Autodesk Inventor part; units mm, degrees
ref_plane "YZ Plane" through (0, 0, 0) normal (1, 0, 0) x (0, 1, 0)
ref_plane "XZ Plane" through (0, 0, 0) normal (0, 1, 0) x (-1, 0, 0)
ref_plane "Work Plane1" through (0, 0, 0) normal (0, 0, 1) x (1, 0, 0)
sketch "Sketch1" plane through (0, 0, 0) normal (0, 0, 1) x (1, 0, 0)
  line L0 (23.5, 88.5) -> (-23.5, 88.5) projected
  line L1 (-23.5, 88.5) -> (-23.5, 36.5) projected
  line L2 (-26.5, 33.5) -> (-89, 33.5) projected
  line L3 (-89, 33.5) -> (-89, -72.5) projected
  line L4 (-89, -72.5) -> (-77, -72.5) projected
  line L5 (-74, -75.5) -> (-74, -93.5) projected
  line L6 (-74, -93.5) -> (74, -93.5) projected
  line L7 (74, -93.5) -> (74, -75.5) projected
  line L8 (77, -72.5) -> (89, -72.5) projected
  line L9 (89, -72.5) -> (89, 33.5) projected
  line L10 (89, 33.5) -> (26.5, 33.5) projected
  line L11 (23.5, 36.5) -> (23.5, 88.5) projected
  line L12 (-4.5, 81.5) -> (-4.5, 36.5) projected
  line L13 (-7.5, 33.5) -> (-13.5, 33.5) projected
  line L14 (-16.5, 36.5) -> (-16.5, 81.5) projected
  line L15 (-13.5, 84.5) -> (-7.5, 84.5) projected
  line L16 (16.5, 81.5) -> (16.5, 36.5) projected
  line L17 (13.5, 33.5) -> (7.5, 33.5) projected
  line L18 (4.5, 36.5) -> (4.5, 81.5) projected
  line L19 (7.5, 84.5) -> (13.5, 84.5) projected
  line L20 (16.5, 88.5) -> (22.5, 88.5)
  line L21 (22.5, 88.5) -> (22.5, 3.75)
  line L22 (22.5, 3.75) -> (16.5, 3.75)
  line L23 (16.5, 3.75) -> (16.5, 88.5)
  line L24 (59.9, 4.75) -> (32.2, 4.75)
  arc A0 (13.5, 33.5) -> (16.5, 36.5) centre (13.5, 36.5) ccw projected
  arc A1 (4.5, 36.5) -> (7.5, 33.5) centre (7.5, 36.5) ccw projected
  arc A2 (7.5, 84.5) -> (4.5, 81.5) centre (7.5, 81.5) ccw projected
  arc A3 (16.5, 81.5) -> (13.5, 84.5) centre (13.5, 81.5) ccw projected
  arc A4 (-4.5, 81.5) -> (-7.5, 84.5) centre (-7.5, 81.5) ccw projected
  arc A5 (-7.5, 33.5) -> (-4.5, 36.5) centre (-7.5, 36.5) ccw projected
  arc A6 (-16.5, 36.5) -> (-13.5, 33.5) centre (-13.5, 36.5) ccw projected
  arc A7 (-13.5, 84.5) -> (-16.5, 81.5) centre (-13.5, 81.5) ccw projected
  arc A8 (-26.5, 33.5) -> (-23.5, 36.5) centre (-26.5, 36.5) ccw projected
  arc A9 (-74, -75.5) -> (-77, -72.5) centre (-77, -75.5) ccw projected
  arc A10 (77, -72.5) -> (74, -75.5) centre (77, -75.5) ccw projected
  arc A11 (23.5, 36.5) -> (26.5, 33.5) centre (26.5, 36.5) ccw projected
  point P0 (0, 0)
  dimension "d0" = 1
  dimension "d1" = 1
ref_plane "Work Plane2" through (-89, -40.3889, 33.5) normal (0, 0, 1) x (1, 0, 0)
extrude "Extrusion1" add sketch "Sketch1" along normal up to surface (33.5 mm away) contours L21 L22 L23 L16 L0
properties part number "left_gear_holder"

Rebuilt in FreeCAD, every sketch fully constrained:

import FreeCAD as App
import Part
import Sketcher
from FreeCAD import Vector
Q = App.Units.Quantity


def add_polygon(sketch, points):
    """Adds a closed chain of lines whose ends are joined by coincident constraints."""
    first, n = sketch.GeometryCount, len(points)
    for a, b in zip(points, points[1:] + points[:1]):
        sketch.addGeometry(Part.LineSegment(App.Vector(*a, 0), App.Vector(*b, 0)), False)
    for i in range(n):
        sketch.addConstraint(Sketcher.Constraint("Coincident", first + i, 2, first + (i + 1) % n, 1))

doc = App.newDocument("Part")
body = doc.addObject("PartDesign::Body", "Body")

# Sketch on XY plane
sketch1 = body.newObject("Sketcher::SketchObject", "Sketch")
sketch1.AttachmentSupport = (doc.getObject("XY_Plane"), [""])
sketch1.MapMode = "FlatFace"
add_polygon(sketch1, [(22.5, 3.75), (22.5, 88.5), (16.5, 88.5), (16.5, 3.75)])  # lines 0-3
sketch1.addConstraint([
    Sketcher.Constraint("Vertical", 0),
    Sketcher.Constraint("Horizontal", 1),
    Sketcher.Constraint("Vertical", 2),
    Sketcher.Constraint("Horizontal", 3),
    Sketcher.Constraint("DistanceX", 1, 2, 1, 1, Q("6 mm")),
    Sketcher.Constraint("DistanceY", 0, 1, 0, 2, Q("84.75 mm")),
    Sketcher.Constraint("DistanceX", -1, 1, 0, 2, Q("22.5 mm")),
    Sketcher.Constraint("DistanceY", -1, 1, 0, 2, Q("88.5 mm")),
])
pad1 = body.newObject("PartDesign::Pad", "Pad")
pad1.Profile = sketch1
pad1.Length = 33.5

doc.recompute()
